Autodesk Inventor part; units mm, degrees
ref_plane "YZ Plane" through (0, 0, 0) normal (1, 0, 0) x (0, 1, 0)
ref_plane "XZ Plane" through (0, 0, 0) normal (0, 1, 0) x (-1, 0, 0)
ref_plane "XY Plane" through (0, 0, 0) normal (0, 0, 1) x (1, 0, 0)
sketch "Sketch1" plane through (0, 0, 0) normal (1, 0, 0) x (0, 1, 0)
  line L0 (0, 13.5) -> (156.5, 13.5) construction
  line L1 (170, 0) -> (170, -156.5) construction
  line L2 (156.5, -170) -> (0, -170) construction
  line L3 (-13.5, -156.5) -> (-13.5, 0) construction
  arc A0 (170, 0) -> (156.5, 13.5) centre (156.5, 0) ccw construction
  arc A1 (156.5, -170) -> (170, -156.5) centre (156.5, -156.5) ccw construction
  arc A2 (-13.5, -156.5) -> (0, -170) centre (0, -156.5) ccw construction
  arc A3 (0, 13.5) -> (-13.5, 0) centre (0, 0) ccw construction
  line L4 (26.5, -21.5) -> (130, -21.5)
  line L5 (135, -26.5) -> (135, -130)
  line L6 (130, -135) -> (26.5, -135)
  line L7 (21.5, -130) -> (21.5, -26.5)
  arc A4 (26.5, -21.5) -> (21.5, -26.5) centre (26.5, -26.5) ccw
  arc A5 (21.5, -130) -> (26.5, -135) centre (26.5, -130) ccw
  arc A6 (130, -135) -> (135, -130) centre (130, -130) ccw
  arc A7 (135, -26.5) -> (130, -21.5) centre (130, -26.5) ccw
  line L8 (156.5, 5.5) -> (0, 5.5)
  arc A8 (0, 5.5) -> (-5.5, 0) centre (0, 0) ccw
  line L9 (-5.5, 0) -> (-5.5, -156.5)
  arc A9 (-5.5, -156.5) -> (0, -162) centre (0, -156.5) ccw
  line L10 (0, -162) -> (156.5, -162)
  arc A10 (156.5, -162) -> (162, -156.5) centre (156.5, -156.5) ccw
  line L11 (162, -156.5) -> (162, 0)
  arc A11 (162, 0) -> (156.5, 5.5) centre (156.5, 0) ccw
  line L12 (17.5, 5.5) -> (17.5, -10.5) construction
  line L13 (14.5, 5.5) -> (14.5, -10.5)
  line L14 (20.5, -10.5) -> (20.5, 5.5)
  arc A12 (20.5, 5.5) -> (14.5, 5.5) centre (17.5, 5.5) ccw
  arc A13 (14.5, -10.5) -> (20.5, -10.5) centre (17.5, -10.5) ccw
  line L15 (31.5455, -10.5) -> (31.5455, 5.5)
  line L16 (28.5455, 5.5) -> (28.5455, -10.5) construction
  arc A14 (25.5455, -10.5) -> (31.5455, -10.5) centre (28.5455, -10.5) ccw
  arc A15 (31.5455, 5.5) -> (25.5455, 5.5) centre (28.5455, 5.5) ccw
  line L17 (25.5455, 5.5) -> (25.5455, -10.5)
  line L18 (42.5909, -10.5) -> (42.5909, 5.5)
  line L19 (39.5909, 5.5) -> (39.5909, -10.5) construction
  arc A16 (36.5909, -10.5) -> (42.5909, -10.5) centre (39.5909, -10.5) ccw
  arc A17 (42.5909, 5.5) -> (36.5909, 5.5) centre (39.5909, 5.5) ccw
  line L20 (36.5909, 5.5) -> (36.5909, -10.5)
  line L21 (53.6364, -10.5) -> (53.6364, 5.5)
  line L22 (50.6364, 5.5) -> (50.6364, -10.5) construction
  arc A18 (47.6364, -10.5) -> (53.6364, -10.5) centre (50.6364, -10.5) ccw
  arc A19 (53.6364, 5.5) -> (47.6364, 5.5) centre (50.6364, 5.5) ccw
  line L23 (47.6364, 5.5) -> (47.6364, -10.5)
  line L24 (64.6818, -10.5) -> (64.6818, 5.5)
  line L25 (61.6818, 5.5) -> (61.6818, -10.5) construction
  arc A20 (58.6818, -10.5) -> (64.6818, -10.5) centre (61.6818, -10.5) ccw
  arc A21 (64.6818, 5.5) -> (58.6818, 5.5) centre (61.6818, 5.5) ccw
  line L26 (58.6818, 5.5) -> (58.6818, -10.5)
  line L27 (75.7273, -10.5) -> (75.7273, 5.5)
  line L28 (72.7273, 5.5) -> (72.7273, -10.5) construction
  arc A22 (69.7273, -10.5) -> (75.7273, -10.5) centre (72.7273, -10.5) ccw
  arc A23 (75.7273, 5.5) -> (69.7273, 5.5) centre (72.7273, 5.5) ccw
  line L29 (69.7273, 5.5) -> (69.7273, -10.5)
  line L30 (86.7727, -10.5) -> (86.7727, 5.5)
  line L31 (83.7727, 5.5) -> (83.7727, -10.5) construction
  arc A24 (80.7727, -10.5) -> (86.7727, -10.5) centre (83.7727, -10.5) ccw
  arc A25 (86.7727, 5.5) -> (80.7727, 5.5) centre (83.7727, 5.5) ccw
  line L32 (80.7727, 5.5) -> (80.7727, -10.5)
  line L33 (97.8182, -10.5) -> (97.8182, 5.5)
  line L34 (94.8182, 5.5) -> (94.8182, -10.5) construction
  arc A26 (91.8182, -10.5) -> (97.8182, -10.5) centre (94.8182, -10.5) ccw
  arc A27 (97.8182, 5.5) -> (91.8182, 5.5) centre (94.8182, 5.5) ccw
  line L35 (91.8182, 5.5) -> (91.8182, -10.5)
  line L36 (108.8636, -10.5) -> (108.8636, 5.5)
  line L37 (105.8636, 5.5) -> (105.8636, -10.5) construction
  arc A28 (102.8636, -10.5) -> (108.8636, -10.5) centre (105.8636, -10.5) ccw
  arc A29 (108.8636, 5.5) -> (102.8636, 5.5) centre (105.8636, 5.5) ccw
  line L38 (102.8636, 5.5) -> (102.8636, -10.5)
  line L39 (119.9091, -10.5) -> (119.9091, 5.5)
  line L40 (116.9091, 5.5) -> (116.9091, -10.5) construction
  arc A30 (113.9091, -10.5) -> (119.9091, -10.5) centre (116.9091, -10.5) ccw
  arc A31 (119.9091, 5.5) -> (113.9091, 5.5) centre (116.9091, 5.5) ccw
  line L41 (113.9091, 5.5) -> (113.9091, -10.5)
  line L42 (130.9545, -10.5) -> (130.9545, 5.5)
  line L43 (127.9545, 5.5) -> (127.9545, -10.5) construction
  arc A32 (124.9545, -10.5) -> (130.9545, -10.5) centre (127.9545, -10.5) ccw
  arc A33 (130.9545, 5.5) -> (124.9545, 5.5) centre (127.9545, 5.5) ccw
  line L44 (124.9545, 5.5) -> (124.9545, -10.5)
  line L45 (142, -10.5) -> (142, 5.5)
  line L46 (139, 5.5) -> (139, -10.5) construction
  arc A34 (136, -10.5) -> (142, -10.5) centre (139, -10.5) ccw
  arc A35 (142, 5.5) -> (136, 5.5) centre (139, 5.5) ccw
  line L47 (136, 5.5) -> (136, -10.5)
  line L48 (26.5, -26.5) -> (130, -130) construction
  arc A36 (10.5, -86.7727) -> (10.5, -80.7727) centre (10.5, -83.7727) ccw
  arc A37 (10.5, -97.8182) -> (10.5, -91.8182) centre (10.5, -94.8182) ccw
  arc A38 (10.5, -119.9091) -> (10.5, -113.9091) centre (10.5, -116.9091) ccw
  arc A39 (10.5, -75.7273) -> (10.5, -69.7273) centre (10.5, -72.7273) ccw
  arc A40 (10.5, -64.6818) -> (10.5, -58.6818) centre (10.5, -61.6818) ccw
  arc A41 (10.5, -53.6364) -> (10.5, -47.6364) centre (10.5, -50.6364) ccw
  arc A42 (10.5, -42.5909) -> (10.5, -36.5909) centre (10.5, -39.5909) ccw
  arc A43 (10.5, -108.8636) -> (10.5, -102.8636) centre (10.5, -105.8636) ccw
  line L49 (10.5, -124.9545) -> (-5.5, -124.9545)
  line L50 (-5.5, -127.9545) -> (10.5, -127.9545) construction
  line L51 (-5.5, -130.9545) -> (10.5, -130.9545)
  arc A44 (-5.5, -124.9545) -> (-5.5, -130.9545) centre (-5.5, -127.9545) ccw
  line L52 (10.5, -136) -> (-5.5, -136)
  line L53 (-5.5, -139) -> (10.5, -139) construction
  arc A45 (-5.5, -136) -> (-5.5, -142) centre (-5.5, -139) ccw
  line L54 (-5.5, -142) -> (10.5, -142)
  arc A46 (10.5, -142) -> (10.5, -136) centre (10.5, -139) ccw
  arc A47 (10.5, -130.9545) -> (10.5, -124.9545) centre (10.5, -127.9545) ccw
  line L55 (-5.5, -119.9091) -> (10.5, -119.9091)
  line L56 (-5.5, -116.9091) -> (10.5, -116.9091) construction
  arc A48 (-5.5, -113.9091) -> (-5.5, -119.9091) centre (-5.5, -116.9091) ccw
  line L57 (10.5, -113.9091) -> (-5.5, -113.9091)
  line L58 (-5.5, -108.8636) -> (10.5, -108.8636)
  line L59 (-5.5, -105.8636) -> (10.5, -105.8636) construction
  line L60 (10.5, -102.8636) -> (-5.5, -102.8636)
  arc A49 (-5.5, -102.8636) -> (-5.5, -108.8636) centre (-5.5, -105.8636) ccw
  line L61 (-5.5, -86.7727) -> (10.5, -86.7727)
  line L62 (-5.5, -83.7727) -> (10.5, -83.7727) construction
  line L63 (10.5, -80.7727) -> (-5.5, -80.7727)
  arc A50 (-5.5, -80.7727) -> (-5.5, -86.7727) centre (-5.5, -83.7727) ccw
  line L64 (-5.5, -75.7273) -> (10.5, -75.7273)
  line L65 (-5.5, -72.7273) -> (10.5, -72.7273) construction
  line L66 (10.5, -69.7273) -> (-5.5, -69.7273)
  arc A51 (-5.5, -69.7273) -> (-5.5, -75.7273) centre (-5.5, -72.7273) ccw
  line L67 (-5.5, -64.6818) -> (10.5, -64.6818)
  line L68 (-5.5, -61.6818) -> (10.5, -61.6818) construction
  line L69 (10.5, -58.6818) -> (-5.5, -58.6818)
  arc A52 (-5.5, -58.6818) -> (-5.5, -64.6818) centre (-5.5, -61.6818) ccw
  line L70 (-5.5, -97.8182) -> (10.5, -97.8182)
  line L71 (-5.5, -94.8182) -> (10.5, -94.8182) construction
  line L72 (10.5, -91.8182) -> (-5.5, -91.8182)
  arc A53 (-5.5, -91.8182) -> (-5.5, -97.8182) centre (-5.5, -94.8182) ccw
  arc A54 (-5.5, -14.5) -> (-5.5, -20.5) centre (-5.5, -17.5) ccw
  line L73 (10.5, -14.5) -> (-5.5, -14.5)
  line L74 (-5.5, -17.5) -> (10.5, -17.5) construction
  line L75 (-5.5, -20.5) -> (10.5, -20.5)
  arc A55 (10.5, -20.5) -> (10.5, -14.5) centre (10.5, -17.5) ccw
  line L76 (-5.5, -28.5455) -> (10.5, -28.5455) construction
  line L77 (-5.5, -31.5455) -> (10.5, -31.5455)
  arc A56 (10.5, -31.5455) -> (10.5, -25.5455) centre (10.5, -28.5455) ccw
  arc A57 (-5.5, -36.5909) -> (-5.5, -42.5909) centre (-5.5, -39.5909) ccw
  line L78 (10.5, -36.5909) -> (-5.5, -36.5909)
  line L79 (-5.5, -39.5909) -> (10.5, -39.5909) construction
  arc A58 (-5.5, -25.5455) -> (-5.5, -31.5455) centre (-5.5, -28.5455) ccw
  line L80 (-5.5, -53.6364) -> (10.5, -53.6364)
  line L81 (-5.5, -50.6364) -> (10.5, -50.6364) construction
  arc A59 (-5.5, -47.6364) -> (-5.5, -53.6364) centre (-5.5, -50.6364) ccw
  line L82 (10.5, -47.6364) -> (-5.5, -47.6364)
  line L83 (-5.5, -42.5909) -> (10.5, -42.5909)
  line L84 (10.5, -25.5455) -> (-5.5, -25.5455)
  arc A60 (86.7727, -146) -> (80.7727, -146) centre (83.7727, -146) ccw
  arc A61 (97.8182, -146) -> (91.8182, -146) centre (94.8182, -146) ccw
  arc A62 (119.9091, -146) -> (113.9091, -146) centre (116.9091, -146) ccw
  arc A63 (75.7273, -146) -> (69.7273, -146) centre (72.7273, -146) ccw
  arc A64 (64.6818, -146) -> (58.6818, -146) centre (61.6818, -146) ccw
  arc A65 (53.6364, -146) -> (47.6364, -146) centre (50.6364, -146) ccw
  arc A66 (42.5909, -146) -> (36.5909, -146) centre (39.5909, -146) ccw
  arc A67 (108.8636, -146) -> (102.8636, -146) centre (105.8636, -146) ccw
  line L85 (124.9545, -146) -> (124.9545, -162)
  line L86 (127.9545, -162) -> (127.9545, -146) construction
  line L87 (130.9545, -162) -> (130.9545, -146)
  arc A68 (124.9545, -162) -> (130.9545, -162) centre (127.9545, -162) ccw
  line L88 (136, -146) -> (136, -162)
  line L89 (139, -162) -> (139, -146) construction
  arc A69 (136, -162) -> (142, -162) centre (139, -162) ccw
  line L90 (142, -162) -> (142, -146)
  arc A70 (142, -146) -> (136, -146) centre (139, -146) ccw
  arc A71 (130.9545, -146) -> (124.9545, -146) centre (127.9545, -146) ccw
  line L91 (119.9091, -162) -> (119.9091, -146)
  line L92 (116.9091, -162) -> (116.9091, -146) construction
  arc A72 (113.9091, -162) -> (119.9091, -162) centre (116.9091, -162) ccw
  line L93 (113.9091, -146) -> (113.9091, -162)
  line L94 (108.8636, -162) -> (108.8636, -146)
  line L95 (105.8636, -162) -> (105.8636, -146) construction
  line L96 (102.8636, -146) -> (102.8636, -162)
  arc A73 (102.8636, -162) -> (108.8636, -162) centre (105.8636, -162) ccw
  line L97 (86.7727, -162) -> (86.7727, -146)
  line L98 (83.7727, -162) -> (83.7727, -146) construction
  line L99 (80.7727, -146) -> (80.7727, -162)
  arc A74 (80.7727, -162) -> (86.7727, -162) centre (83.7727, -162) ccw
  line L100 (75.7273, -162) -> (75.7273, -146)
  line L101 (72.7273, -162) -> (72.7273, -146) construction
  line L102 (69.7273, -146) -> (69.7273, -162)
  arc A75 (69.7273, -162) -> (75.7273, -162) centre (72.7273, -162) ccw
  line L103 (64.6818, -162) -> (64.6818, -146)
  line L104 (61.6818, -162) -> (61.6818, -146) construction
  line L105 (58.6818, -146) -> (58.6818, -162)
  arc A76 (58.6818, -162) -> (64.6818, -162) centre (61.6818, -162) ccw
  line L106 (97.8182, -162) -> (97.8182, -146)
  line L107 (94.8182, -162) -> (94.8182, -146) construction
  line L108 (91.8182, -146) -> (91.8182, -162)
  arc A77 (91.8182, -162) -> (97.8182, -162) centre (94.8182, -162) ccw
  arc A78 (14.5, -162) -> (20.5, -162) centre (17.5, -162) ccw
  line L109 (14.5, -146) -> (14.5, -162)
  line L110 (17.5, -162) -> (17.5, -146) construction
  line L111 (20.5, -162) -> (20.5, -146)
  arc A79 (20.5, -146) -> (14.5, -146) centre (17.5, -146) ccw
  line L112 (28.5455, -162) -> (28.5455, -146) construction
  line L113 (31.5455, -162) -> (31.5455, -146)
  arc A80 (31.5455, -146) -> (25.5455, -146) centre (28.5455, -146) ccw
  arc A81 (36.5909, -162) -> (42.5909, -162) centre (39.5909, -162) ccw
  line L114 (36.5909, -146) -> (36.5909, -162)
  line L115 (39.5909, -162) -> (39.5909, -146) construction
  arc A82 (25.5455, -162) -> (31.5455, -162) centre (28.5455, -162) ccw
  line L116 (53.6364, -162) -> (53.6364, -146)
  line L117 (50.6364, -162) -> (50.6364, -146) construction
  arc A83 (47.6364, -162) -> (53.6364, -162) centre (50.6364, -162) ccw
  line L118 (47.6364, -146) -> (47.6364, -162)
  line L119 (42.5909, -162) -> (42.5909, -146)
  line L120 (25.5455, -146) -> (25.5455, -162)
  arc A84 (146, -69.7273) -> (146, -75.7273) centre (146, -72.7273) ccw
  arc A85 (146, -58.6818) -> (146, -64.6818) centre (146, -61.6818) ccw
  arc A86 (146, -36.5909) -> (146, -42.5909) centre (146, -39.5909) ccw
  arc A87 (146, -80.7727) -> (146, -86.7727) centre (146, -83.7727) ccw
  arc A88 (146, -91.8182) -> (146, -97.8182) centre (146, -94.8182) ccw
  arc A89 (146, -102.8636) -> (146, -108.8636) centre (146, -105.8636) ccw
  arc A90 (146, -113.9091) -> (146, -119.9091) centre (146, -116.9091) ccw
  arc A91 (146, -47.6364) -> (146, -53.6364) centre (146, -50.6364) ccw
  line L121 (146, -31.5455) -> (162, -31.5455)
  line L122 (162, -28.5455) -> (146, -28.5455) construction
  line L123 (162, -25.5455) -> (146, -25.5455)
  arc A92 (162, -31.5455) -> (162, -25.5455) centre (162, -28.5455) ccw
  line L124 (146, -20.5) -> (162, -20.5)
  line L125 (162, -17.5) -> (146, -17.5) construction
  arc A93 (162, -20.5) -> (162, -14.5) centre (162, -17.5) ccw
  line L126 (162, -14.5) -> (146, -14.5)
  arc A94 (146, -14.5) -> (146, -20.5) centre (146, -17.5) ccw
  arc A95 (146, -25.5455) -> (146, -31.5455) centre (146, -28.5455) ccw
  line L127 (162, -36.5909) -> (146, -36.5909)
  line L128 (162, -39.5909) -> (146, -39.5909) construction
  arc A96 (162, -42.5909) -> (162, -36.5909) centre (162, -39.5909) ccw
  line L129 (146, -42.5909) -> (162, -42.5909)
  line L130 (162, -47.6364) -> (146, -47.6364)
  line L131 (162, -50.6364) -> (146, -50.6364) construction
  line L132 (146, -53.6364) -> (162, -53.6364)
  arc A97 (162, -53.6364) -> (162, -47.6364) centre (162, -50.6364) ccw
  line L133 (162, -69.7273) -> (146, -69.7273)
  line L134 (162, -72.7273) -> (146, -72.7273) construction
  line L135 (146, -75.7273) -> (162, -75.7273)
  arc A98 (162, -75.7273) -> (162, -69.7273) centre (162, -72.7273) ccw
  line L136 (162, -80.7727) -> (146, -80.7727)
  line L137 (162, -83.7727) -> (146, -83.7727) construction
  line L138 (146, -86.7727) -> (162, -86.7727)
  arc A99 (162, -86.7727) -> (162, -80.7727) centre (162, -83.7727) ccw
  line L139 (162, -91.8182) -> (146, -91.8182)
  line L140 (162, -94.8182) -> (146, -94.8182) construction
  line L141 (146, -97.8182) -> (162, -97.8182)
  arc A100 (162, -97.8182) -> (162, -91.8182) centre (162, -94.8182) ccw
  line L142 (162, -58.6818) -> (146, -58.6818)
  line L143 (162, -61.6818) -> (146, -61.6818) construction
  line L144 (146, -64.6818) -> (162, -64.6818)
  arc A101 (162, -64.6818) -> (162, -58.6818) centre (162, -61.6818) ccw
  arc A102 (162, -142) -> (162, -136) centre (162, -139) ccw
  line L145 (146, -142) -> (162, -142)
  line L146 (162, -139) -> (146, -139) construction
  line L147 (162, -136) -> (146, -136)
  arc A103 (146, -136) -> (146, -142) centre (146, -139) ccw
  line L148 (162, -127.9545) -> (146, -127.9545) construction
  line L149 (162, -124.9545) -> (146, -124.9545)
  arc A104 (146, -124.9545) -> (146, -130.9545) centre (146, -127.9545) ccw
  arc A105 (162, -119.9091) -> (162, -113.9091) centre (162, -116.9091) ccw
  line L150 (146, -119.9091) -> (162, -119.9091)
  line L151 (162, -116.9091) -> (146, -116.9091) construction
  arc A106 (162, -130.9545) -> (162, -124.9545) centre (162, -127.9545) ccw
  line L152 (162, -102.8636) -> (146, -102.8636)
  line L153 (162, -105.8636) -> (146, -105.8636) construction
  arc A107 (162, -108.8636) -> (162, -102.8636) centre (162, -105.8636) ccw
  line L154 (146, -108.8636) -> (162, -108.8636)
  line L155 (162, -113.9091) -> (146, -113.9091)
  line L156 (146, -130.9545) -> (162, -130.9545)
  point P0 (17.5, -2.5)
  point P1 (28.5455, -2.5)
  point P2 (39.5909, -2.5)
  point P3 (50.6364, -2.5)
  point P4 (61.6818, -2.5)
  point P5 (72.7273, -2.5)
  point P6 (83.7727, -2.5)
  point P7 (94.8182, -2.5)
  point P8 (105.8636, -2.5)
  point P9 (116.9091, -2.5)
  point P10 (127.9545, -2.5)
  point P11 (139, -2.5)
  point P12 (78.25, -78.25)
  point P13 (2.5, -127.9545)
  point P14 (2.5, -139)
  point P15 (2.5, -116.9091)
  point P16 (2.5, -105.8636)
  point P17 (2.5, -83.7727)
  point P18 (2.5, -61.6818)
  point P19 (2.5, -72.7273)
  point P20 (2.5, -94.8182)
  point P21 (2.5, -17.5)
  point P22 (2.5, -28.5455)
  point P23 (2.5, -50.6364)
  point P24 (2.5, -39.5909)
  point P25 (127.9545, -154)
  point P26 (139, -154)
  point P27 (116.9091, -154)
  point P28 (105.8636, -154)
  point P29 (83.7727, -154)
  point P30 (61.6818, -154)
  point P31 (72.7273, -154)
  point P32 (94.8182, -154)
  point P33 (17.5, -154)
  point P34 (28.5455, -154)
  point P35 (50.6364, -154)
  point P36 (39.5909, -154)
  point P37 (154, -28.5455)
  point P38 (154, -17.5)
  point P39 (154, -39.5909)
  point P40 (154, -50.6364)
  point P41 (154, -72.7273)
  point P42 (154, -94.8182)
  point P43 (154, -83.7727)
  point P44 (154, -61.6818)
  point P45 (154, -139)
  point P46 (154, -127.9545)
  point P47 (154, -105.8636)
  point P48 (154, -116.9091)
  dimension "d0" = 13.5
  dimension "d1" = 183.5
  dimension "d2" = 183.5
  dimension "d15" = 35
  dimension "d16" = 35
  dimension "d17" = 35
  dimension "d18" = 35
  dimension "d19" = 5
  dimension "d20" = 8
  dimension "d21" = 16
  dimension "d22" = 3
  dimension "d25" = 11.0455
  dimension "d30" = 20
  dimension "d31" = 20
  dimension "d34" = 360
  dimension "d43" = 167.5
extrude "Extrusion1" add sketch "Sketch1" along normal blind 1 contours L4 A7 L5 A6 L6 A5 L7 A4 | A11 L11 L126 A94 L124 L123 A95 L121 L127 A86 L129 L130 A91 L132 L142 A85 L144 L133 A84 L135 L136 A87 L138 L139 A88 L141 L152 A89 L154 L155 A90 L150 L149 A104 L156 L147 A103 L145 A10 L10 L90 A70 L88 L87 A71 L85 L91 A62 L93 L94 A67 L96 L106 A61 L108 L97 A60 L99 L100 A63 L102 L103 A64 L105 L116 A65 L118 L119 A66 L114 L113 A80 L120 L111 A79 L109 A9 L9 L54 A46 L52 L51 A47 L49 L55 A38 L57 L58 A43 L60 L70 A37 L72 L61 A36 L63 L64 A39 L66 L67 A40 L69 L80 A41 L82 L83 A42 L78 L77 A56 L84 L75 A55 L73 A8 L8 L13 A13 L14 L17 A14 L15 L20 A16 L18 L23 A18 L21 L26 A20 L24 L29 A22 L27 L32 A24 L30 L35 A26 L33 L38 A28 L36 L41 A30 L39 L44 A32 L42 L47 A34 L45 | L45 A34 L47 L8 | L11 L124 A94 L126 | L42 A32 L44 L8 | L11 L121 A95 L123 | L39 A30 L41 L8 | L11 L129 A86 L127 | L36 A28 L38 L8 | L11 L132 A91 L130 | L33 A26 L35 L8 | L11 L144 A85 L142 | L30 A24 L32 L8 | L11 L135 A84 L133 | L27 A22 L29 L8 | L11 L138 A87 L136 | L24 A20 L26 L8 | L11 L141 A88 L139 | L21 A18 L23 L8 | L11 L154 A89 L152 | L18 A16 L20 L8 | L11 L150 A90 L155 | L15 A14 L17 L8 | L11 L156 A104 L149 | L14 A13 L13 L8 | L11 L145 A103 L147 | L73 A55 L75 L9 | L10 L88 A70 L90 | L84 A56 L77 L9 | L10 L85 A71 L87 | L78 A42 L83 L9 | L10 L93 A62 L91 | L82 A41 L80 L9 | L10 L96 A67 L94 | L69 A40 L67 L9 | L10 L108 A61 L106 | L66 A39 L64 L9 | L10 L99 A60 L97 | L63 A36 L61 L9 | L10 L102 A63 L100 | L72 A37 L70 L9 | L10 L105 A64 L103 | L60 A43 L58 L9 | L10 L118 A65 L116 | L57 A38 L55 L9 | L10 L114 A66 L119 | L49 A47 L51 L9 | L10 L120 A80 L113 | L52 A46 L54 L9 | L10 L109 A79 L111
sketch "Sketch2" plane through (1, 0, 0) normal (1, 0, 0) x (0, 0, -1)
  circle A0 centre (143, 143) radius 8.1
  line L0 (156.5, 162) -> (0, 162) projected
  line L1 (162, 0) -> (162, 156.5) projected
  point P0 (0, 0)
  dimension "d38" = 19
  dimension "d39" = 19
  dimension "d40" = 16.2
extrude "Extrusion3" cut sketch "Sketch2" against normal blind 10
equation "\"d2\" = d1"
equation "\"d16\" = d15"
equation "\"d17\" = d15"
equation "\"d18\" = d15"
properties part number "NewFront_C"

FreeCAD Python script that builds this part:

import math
import FreeCAD as App
import Part
import Sketcher

V = App.Vector
Q = App.Units.Quantity

doc = App.newDocument("Part")
body = doc.addObject("PartDesign::Body", "Body")

sketch1 = doc.addObject("Sketcher::SketchObject", "Sketch")
body.addObject(sketch1)
sketch1.AttachmentSupport = (doc.YZ_Plane, [""])
sketch1.MapMode = "FlatFace"
sketch1.addGeometry([
    Part.ArcOfCircle(Part.Circle(V(156, 0, 0), V(0, 0, 1), 6), math.radians(0), math.radians(90)),
    Part.LineSegment(V(156, 6, 0), V(0, 6, 0)),
    Part.ArcOfCircle(Part.Circle(V(0, 0, 0), V(0, 0, 1), 6), math.radians(90), math.radians(180)),
    Part.LineSegment(V(-6, 0, 0), V(-6, -156, 0)),
    Part.ArcOfCircle(Part.Circle(V(0, -156, 0), V(0, 0, 1), 6), math.radians(180), math.radians(270)),
    Part.LineSegment(V(0, -162, 0), V(156, -162, 0)),
    Part.ArcOfCircle(Part.Circle(V(156, -156, 0), V(0, 0, 1), 6), math.radians(-90), math.radians(0)),
    Part.LineSegment(V(162, -156, 0), V(162, 0, 0)),
], False)
sketch1.addConstraint([
    Sketcher.Constraint("Tangent", 0, 2, 1, 1),
    Sketcher.Constraint("Tangent", 1, 2, 2, 1),
    Sketcher.Constraint("Tangent", 2, 2, 3, 1),
    Sketcher.Constraint("Tangent", 3, 2, 4, 1),
    Sketcher.Constraint("Tangent", 4, 2, 5, 1),
    Sketcher.Constraint("Tangent", 5, 2, 6, 1),
    Sketcher.Constraint("Tangent", 6, 2, 7, 1),
    Sketcher.Constraint("Tangent", 7, 2, 0, 1),
    Sketcher.Constraint("Horizontal", 1),
    Sketcher.Constraint("Vertical", 3),
    Sketcher.Constraint("Horizontal", 5),
    Sketcher.Constraint("Vertical", 7),
    Sketcher.Constraint("Coincident", 2, 3, -1, 1),
    Sketcher.Constraint("Equal", 0, 2),
    Sketcher.Constraint("Equal", 2, 4),
    Sketcher.Constraint("Equal", 4, 6),
    Sketcher.Constraint("Equal", 5, 3),
    Sketcher.Constraint("Radius", 0, Q("5.5 mm")),
    Sketcher.Constraint("DistanceX", 1, 2, 1, 1, Q("156.5 mm")),
])
pad1 = doc.addObject("PartDesign::Pad", "Pad")
body.addObject(pad1)
pad1.Profile = sketch1
pad1.Length = 1

sketch2 = doc.addObject("Sketcher::SketchObject", "Sketch001")
body.addObject(sketch2)
sketch2.AttachmentSupport = (doc.YZ_Plane, [""])
sketch2.MapMode = "FlatFace"
sketch2.AttachmentOffset = App.Placement(V(0, 0, 1), App.Rotation())
sketch2.addGeometry(Part.Circle(V(143, -143, 0), V(0, 0, 1), 8), False)
sketch2.addConstraint([
    Sketcher.Constraint("Diameter", 0, Q("16.2 mm")),
    Sketcher.Constraint("DistanceX", -1, 1, 0, 3, Q("143 mm")),
    Sketcher.Constraint("DistanceY", 0, 3, -1, 1, Q("143 mm")),
])
pocket1 = doc.addObject("PartDesign::Pocket", "Pocket")
body.addObject(pocket1)
pocket1.Profile = sketch2
pocket1.Length = 10

doc.recompute()
